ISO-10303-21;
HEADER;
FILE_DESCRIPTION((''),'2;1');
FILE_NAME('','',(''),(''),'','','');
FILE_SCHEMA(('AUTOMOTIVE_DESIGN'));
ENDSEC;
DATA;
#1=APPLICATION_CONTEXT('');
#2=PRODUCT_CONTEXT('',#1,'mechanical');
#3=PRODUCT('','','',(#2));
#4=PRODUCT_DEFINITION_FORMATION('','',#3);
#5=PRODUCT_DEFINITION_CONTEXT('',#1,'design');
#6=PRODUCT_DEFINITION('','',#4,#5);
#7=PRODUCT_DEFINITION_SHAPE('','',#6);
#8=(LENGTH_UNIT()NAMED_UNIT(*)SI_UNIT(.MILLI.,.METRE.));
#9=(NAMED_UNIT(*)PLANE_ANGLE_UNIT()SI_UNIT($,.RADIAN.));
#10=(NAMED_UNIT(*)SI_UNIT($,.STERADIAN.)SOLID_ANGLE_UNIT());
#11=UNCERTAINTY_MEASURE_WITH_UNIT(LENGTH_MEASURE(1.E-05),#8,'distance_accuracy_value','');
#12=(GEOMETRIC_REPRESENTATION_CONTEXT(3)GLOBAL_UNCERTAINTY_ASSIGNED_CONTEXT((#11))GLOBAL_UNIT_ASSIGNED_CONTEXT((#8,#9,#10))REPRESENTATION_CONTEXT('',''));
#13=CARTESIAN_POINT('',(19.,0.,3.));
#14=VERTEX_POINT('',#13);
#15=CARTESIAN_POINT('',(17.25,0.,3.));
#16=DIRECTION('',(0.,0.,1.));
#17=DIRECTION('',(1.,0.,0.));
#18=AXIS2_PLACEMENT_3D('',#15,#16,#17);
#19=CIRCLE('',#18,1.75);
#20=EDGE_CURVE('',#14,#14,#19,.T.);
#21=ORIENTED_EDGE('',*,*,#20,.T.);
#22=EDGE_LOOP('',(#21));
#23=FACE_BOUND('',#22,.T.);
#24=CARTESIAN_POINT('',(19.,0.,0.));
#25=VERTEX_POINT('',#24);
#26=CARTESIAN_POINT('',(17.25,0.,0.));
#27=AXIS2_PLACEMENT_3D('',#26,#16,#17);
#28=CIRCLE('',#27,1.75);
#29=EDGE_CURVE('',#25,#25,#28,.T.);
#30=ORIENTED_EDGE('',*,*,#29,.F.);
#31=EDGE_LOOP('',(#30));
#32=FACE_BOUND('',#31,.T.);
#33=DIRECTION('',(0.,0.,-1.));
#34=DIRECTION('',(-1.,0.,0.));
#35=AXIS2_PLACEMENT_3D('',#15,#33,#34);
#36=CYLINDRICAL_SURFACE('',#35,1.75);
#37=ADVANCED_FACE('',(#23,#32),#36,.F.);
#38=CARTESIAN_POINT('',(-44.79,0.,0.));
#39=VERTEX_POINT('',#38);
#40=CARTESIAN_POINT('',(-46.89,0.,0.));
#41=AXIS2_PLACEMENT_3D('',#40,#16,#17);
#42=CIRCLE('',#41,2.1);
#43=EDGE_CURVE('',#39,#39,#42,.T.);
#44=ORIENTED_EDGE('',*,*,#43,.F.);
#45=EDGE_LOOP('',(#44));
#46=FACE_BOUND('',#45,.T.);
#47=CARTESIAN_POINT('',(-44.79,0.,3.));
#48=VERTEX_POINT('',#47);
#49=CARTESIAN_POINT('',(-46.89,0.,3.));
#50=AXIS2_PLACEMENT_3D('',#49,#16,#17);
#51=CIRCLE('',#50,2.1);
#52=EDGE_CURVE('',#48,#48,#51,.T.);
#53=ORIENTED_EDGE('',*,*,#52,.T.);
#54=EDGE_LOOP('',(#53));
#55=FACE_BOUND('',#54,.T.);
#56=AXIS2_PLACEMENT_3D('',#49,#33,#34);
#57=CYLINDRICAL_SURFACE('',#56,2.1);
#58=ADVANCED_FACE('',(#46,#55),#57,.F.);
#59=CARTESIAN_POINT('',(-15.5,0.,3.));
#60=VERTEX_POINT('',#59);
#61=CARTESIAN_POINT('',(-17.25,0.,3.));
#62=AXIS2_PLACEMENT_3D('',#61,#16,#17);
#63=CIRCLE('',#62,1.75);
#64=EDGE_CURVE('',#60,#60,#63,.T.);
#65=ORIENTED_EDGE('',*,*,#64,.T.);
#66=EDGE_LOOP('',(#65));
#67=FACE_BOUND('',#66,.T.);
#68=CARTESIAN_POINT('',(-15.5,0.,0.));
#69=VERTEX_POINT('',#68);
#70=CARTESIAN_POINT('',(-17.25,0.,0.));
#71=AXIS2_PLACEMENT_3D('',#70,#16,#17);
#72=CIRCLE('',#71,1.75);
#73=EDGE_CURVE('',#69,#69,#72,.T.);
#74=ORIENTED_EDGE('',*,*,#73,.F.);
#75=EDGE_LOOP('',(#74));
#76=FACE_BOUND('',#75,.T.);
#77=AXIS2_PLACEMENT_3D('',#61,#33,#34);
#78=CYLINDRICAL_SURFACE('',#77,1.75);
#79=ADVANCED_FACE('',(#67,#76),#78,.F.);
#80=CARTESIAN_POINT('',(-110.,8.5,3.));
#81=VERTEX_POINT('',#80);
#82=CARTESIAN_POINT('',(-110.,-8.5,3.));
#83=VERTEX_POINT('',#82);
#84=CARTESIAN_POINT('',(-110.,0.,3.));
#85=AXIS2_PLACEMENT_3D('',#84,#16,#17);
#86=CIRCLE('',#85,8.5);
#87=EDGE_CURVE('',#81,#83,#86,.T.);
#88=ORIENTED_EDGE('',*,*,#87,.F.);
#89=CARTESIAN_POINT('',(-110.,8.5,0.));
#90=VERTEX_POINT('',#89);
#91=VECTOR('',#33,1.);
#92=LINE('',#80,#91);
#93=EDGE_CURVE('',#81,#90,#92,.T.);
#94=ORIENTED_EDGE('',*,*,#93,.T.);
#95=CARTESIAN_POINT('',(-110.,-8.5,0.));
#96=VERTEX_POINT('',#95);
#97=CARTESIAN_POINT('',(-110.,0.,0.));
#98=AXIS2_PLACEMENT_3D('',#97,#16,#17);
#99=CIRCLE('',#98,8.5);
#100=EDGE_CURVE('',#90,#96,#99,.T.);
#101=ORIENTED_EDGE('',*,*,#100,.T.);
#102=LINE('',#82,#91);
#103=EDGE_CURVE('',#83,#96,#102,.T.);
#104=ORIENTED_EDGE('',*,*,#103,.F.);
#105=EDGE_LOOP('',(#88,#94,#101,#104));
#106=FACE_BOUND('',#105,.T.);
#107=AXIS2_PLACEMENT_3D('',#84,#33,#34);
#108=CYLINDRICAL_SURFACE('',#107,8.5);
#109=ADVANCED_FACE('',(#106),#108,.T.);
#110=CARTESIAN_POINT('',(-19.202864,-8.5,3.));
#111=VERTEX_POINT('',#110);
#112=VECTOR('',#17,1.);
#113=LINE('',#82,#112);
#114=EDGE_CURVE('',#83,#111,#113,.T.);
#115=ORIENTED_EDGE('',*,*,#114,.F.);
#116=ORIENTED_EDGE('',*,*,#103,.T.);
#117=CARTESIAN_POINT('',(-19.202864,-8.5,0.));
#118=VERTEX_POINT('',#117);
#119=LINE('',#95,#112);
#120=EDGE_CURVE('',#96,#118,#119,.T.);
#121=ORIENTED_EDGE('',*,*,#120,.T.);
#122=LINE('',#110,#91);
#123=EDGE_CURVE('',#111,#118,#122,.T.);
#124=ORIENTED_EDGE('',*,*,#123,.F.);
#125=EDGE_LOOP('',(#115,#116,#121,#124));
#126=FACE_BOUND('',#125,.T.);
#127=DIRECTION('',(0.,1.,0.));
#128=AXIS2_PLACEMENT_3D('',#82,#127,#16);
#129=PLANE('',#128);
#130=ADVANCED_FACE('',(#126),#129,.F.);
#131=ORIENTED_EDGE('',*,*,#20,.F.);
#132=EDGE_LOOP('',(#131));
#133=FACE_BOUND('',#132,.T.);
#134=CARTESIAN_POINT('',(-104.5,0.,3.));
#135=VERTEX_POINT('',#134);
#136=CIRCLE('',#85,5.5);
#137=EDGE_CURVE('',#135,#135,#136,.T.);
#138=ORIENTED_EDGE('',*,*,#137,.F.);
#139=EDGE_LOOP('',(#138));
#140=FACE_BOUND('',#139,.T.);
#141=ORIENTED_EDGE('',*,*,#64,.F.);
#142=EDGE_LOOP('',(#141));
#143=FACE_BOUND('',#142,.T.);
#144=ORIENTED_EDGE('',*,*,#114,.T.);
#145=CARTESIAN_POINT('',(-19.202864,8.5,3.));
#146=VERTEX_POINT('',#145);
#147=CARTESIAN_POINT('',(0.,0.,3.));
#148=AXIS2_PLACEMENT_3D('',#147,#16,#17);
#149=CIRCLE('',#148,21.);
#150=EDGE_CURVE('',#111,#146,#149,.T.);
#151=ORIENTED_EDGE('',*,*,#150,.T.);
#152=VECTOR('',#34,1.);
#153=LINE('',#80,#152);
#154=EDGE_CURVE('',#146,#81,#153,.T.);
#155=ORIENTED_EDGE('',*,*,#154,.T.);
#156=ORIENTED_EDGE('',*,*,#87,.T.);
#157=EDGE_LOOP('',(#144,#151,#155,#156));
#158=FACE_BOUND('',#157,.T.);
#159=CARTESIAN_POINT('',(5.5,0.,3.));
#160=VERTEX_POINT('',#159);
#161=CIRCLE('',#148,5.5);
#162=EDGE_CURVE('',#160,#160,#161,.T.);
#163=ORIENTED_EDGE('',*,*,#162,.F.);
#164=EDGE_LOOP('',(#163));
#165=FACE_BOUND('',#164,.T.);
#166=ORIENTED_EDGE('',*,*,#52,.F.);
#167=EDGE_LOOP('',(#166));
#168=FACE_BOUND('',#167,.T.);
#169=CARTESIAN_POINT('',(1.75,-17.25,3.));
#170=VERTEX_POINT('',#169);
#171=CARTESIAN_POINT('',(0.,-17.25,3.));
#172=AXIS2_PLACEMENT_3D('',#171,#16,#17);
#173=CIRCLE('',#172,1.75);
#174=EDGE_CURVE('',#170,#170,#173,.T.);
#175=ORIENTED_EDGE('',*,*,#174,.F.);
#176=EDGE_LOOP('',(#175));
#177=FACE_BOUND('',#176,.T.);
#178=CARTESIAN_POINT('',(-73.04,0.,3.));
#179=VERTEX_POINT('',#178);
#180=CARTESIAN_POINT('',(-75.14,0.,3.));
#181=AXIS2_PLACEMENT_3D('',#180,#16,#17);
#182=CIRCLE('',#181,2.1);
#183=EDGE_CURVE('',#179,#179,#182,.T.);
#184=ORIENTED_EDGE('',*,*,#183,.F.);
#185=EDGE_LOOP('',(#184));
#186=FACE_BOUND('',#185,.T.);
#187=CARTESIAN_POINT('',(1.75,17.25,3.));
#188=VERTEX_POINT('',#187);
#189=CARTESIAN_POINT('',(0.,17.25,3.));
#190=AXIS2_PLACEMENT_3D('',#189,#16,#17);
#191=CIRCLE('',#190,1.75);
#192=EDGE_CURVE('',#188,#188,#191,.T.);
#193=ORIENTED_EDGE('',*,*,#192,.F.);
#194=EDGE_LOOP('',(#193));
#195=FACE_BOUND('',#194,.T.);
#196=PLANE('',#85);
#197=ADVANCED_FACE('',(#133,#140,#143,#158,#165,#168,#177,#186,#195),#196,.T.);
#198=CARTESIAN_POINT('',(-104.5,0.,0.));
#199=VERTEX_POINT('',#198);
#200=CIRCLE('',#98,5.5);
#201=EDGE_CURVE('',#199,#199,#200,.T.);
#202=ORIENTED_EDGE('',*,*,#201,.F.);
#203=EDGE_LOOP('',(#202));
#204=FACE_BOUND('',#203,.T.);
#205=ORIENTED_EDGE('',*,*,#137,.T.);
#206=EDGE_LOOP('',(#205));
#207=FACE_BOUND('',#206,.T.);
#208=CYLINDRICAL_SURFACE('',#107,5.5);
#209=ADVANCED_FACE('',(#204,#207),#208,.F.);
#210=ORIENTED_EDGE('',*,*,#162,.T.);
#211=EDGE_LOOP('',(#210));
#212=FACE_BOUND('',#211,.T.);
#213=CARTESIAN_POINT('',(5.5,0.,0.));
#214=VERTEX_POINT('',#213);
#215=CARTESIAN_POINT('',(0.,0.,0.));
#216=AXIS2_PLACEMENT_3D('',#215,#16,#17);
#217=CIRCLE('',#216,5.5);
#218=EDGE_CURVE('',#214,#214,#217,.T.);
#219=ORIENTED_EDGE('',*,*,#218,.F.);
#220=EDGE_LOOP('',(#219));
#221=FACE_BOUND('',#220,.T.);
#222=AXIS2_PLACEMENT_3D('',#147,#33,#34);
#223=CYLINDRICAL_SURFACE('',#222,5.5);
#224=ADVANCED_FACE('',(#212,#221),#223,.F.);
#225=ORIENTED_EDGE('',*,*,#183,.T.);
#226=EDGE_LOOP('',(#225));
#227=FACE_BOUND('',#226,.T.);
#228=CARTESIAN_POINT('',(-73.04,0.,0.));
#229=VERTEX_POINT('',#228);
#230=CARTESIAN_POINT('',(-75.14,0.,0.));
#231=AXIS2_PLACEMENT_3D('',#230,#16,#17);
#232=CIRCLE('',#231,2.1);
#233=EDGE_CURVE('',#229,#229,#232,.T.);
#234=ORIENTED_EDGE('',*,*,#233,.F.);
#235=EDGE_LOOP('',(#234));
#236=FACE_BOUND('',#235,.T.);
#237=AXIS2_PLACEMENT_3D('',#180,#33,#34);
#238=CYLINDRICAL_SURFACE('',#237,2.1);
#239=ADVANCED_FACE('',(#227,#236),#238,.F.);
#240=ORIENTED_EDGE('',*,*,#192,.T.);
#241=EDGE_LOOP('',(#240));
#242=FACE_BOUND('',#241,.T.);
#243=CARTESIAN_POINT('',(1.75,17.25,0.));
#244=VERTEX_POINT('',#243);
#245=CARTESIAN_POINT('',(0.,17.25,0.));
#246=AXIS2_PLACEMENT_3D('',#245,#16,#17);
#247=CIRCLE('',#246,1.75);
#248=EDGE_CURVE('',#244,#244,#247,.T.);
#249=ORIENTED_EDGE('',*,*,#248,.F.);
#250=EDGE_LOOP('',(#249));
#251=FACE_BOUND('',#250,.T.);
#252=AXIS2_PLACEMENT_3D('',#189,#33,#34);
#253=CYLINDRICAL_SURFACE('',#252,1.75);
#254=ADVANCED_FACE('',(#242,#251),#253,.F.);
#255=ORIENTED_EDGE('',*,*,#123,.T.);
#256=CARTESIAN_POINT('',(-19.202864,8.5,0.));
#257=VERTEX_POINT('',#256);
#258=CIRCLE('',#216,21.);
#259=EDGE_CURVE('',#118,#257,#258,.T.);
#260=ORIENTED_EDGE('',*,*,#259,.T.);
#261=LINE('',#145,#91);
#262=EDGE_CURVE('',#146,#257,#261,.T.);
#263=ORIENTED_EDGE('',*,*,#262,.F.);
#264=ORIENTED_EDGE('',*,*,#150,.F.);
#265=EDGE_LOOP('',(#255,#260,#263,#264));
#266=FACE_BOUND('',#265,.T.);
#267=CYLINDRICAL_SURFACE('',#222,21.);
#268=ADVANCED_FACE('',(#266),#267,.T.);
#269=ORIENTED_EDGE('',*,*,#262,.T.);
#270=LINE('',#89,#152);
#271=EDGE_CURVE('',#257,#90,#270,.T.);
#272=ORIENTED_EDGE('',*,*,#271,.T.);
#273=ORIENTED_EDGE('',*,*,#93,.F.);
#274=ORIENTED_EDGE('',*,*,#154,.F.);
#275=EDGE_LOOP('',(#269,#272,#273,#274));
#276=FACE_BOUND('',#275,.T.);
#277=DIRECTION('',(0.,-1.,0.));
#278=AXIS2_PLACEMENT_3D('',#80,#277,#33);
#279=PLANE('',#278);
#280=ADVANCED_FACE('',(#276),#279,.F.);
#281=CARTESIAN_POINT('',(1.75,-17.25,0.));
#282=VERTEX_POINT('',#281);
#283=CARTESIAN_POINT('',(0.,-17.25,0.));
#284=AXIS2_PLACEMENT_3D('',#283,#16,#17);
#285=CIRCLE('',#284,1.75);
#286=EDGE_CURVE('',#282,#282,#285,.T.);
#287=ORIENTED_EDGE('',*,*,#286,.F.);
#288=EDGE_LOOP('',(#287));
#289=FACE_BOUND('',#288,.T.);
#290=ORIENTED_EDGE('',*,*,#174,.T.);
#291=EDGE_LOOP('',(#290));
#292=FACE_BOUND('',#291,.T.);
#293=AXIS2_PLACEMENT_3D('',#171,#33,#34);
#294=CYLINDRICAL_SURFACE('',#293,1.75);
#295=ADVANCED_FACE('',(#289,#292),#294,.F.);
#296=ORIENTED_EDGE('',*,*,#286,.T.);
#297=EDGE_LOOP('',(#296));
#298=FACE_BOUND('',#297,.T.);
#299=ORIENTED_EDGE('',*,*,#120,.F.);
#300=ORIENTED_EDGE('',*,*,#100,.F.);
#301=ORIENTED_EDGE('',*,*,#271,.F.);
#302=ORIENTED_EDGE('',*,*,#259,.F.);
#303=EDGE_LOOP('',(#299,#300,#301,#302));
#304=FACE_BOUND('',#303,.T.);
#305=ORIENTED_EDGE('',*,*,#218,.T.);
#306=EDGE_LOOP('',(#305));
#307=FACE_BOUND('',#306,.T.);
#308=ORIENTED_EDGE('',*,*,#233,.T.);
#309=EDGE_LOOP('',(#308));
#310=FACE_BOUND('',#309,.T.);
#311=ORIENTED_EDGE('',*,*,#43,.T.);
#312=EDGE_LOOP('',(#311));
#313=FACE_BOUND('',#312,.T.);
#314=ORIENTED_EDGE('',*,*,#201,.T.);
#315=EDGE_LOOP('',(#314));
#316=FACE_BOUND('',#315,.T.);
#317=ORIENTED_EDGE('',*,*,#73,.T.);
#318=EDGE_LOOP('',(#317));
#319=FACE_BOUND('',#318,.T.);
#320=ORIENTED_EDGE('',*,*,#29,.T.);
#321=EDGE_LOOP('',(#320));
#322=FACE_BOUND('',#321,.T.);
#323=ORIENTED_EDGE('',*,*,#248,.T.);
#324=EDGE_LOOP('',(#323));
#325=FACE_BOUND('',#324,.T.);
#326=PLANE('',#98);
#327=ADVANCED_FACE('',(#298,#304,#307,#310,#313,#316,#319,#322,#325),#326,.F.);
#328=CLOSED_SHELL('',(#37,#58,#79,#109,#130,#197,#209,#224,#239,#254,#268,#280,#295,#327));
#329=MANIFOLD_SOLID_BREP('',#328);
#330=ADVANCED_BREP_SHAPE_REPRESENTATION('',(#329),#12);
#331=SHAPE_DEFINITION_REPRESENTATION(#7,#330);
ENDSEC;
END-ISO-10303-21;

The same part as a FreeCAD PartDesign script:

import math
import FreeCAD as App
import Part
import Sketcher

V = App.Vector

doc = App.newDocument("Part")
body = doc.addObject("PartDesign::Body", "Body")

# Sketch on XY plane
sketch1 = body.newObject("Sketcher::SketchObject", "Sketch")
sketch1.AttachmentSupport = (doc.getObject("XY_Plane"), [""])
sketch1.MapMode = "FlatFace"
sketch1.addGeometry(Part.LineSegment(V(-19.202864, 8.5, 0), V(-110, 8.5, 0)), False)
sketch1.addGeometry(Part.ArcOfCircle(Part.Circle(V(-110, 0, 0), V(0, 0, 1), 8.5), math.radians(90), math.radians(270)), False)
sketch1.addGeometry(Part.LineSegment(V(-110, -8.5, 0), V(-19.202864, -8.5, 0)), False)
sketch1.addGeometry(Part.ArcOfCircle(Part.Circle(V(0, 0, 0), V(0, 0, 1), 21), math.radians(-156.123792), math.radians(156.123792)), False)
sketch1.addGeometry(Part.Circle(V(0, -17.25, 0), V(0, 0, 1), 1.75), False)
sketch1.addGeometry(Part.Circle(V(17.25, 0, 0), V(0, 0, 1), 1.75), False)
sketch1.addGeometry(Part.Circle(V(0, 0, 0), V(0, 0, 1), 5.5), False)
sketch1.addGeometry(Part.Circle(V(-17.25, 0, 0), V(0, 0, 1), 1.75), False)
sketch1.addGeometry(Part.Circle(V(-46.89, 0, 0), V(0, 0, 1), 2.1), False)
sketch1.addGeometry(Part.Circle(V(0, 17.25, 0), V(0, 0, 1), 1.75), False)
sketch1.addGeometry(Part.Circle(V(-75.14, 0, 0), V(0, 0, 1), 2.1), False)
sketch1.addGeometry(Part.Circle(V(-110, 0, 0), V(0, 0, 1), 5.5), False)
sketch1.addConstraint(Sketcher.Constraint("Tangent", 0, 2, 1, 1))
sketch1.addConstraint(Sketcher.Constraint("Tangent", 1, 2, 2, 1))
sketch1.addConstraint(Sketcher.Constraint("Coincident", 2, 2, 3, 1))
sketch1.addConstraint(Sketcher.Constraint("Coincident", 3, 2, 0, 1))
sketch1.addConstraint(Sketcher.Constraint("Horizontal", 0))
sketch1.addConstraint(Sketcher.Constraint("Horizontal", 2))
sketch1.addConstraint(Sketcher.Constraint("Coincident", 3, 3, -1, 1))
sketch1.addConstraint(Sketcher.Constraint("Coincident", 6, 3, -1, 1))
sketch1.addConstraint(Sketcher.Constraint("Coincident", 11, 3, 1, 3))
sketch1.addConstraint(Sketcher.Constraint("Equal", 4, 5))
sketch1.addConstraint(Sketcher.Constraint("Equal", 5, 7))
sketch1.addConstraint(Sketcher.Constraint("Equal", 7, 9))
sketch1.addConstraint(Sketcher.Constraint("Equal", 8, 10))
sketch1.addConstraint(Sketcher.Constraint("Equal", 6, 11))
sketch1.addConstraint(Sketcher.Constraint("Symmetric", 5, 3, 7, 3, -1, 1))
sketch1.addConstraint(Sketcher.Constraint("Symmetric", 4, 3, 9, 3, -1, 1))
sketch1.addConstraint(Sketcher.Constraint("PointOnObject", 1, 3, -1))
sketch1.addConstraint(Sketcher.Constraint("PointOnObject", 4, 3, -2))
sketch1.addConstraint(Sketcher.Constraint("PointOnObject", 5, 3, -1))
sketch1.addConstraint(Sketcher.Constraint("PointOnObject", 8, 3, -1))
sketch1.addConstraint(Sketcher.Constraint("PointOnObject", 10, 3, -1))
sketch1.addConstraint(Sketcher.Constraint("Diameter", 6, 11.0))
sketch1.addConstraint(Sketcher.Constraint("Radius", 3, 21.0))
sketch1.addConstraint(Sketcher.Constraint("Diameter", 4, 3.5))
sketch1.addConstraint(Sketcher.Constraint("Diameter", 8, 4.2))
sketch1.addConstraint(Sketcher.Constraint("Radius", 1, 8.5))
sketch1.addConstraint(Sketcher.Constraint("DistanceX", 1, 3, -1, 1, 110.0))
sketch1.addConstraint(Sketcher.Constraint("DistanceX", 7, 3, 5, 3, 34.5))
sketch1.addConstraint(Sketcher.Constraint("DistanceY", 4, 3, 9, 3, 34.5))
sketch1.addConstraint(Sketcher.Constraint("DistanceX", 8, 3, -1, 1, 46.89))
sketch1.addConstraint(Sketcher.Constraint("DistanceX", 10, 3, -1, 1, 75.14))
pad1 = body.newObject("PartDesign::Pad", "Pad")
pad1.Profile = sketch1
pad1.Length = 3

doc.recompute()
